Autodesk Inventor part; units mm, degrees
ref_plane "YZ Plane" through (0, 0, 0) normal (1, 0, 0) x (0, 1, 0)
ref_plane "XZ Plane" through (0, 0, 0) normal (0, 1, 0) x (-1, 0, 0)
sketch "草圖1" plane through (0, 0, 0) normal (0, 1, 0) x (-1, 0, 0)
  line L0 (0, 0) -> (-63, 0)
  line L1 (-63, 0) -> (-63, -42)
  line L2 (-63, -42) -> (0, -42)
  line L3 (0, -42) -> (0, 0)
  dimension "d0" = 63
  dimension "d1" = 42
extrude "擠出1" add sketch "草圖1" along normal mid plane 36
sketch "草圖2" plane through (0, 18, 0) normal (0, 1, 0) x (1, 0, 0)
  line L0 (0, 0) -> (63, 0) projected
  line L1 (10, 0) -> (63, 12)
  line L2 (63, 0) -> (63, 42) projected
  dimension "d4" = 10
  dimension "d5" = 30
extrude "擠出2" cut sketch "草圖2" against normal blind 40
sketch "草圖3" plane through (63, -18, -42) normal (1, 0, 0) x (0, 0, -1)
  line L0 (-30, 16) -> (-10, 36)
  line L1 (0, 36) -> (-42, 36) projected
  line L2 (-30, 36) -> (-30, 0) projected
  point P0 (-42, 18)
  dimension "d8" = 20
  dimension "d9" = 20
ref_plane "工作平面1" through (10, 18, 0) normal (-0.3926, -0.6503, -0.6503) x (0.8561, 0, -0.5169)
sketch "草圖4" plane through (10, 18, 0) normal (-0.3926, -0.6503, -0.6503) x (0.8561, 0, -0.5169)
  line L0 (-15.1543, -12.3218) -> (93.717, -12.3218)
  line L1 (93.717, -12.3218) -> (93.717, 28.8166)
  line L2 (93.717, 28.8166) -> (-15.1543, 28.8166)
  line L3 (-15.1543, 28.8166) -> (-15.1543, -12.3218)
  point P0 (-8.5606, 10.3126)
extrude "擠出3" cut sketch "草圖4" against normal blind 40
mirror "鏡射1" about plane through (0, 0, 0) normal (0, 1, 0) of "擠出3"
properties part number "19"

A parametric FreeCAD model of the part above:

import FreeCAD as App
import Part
import Sketcher

V = App.Vector


def add_polygon(sketch, points):
    """Adds a closed chain of lines whose ends are joined by coincident constraints."""
    first, n = sketch.GeometryCount, len(points)
    for a, b in zip(points, points[1:] + points[:1]):
        sketch.addGeometry(Part.LineSegment(App.Vector(*a, 0), App.Vector(*b, 0)), False)
    for i in range(n):
        sketch.addConstraint(Sketcher.Constraint("Coincident", first + i, 2, first + (i + 1) % n, 1))

doc = App.newDocument("Part")
body = doc.addObject("PartDesign::Body", "Body")

sketch1 = body.newObject("Sketcher::SketchObject", "Sketch")
sketch1.AttachmentSupport = (doc.getObject("XZ_Plane"), [""])
sketch1.MapMode = "FlatFace"
add_polygon(sketch1, [(0, -42), (0, 0), (63, 0), (63, -42)])
sketch1.addConstraint([
    Sketcher.Constraint("Vertical", 0),
    Sketcher.Constraint("Horizontal", 1),
    Sketcher.Constraint("Vertical", 2),
    Sketcher.Constraint("Horizontal", 3),
    Sketcher.Constraint("Coincident", 0, 2, -1, 1),
    Sketcher.Constraint("DistanceX", 1, 1, 1, 2, 63.0),
    Sketcher.Constraint("DistanceY", 0, 1, 0, 2, 42.0),
])
pad1 = body.newObject("PartDesign::Pad", "Pad")
pad1.Profile = sketch1
pad1.Length = 36
pad1.Midplane = True

sketch2 = body.newObject("Sketcher::SketchObject", "Sketch001")
sketch2.AttachmentSupport = (doc.getObject("XZ_Plane"), [""])
sketch2.MapMode = "FlatFace"
sketch2.AttachmentOffset = App.Placement(V(0, 0, -18), App.Rotation())
add_polygon(sketch2, [(63, -12), (10, 0), (63, 0)])
sketch2.addConstraint([
    Sketcher.Constraint("Horizontal", 1),
    Sketcher.Constraint("Vertical", 2),
    Sketcher.Constraint("PointOnObject", 0, 2, -1),
    Sketcher.Constraint("DistanceX", -1, 1, 0, 2, 10.0),
    Sketcher.Constraint("DistanceX", 1, 1, 1, 2, 53.0),
    Sketcher.Constraint("DistanceY", 2, 2, 2, 1, 12.0),
])
pocket1 = body.newObject("PartDesign::Pocket", "Pocket")
pocket1.Profile = sketch2
pocket1.Length = 40
pocket1.Reversed = True

sketch3 = body.newObject("Sketcher::SketchObject", "Sketch002")
sketch3.Placement = App.Placement(V(10, 18, 0), App.Rotation(V(0.856074096, 0.000022898, -0.516853115), V(0.336138768, -0.759653826, 0.556719673), V(-0.392616698, -0.650327659, -0.650327659), "ZXY"))
add_polygon(sketch3, [(-15, 29), (-15, -12), (94, -12), (94, 29)])
sketch3.addConstraint([
    Sketcher.Constraint("Vertical", 0),
    Sketcher.Constraint("Horizontal", 1),
    Sketcher.Constraint("Vertical", 2),
    Sketcher.Constraint("Horizontal", 3),
    Sketcher.Constraint("DistanceX", 1, 1, 1, 2, 108.8713),
    Sketcher.Constraint("DistanceY", 0, 2, 0, 1, 41.1384),
    Sketcher.Constraint("DistanceX", -1, 1, 1, 2, 93.717),
    Sketcher.Constraint("DistanceY", 0, 2, -1, 1, 12.3218),
])
pocket2 = body.newObject("PartDesign::Pocket", "Pocket001")
pocket2.Profile = sketch3
pocket2.Length = 40
doc.recompute()

mirrored = body.newObject("PartDesign::Mirrored", "Mirrored")
mirrored.Originals = [pocket2]
mirrored.MirrorPlane = (doc.getObject("XZ_Plane"), [""])
body.Tip = mirrored

doc.recompute()
